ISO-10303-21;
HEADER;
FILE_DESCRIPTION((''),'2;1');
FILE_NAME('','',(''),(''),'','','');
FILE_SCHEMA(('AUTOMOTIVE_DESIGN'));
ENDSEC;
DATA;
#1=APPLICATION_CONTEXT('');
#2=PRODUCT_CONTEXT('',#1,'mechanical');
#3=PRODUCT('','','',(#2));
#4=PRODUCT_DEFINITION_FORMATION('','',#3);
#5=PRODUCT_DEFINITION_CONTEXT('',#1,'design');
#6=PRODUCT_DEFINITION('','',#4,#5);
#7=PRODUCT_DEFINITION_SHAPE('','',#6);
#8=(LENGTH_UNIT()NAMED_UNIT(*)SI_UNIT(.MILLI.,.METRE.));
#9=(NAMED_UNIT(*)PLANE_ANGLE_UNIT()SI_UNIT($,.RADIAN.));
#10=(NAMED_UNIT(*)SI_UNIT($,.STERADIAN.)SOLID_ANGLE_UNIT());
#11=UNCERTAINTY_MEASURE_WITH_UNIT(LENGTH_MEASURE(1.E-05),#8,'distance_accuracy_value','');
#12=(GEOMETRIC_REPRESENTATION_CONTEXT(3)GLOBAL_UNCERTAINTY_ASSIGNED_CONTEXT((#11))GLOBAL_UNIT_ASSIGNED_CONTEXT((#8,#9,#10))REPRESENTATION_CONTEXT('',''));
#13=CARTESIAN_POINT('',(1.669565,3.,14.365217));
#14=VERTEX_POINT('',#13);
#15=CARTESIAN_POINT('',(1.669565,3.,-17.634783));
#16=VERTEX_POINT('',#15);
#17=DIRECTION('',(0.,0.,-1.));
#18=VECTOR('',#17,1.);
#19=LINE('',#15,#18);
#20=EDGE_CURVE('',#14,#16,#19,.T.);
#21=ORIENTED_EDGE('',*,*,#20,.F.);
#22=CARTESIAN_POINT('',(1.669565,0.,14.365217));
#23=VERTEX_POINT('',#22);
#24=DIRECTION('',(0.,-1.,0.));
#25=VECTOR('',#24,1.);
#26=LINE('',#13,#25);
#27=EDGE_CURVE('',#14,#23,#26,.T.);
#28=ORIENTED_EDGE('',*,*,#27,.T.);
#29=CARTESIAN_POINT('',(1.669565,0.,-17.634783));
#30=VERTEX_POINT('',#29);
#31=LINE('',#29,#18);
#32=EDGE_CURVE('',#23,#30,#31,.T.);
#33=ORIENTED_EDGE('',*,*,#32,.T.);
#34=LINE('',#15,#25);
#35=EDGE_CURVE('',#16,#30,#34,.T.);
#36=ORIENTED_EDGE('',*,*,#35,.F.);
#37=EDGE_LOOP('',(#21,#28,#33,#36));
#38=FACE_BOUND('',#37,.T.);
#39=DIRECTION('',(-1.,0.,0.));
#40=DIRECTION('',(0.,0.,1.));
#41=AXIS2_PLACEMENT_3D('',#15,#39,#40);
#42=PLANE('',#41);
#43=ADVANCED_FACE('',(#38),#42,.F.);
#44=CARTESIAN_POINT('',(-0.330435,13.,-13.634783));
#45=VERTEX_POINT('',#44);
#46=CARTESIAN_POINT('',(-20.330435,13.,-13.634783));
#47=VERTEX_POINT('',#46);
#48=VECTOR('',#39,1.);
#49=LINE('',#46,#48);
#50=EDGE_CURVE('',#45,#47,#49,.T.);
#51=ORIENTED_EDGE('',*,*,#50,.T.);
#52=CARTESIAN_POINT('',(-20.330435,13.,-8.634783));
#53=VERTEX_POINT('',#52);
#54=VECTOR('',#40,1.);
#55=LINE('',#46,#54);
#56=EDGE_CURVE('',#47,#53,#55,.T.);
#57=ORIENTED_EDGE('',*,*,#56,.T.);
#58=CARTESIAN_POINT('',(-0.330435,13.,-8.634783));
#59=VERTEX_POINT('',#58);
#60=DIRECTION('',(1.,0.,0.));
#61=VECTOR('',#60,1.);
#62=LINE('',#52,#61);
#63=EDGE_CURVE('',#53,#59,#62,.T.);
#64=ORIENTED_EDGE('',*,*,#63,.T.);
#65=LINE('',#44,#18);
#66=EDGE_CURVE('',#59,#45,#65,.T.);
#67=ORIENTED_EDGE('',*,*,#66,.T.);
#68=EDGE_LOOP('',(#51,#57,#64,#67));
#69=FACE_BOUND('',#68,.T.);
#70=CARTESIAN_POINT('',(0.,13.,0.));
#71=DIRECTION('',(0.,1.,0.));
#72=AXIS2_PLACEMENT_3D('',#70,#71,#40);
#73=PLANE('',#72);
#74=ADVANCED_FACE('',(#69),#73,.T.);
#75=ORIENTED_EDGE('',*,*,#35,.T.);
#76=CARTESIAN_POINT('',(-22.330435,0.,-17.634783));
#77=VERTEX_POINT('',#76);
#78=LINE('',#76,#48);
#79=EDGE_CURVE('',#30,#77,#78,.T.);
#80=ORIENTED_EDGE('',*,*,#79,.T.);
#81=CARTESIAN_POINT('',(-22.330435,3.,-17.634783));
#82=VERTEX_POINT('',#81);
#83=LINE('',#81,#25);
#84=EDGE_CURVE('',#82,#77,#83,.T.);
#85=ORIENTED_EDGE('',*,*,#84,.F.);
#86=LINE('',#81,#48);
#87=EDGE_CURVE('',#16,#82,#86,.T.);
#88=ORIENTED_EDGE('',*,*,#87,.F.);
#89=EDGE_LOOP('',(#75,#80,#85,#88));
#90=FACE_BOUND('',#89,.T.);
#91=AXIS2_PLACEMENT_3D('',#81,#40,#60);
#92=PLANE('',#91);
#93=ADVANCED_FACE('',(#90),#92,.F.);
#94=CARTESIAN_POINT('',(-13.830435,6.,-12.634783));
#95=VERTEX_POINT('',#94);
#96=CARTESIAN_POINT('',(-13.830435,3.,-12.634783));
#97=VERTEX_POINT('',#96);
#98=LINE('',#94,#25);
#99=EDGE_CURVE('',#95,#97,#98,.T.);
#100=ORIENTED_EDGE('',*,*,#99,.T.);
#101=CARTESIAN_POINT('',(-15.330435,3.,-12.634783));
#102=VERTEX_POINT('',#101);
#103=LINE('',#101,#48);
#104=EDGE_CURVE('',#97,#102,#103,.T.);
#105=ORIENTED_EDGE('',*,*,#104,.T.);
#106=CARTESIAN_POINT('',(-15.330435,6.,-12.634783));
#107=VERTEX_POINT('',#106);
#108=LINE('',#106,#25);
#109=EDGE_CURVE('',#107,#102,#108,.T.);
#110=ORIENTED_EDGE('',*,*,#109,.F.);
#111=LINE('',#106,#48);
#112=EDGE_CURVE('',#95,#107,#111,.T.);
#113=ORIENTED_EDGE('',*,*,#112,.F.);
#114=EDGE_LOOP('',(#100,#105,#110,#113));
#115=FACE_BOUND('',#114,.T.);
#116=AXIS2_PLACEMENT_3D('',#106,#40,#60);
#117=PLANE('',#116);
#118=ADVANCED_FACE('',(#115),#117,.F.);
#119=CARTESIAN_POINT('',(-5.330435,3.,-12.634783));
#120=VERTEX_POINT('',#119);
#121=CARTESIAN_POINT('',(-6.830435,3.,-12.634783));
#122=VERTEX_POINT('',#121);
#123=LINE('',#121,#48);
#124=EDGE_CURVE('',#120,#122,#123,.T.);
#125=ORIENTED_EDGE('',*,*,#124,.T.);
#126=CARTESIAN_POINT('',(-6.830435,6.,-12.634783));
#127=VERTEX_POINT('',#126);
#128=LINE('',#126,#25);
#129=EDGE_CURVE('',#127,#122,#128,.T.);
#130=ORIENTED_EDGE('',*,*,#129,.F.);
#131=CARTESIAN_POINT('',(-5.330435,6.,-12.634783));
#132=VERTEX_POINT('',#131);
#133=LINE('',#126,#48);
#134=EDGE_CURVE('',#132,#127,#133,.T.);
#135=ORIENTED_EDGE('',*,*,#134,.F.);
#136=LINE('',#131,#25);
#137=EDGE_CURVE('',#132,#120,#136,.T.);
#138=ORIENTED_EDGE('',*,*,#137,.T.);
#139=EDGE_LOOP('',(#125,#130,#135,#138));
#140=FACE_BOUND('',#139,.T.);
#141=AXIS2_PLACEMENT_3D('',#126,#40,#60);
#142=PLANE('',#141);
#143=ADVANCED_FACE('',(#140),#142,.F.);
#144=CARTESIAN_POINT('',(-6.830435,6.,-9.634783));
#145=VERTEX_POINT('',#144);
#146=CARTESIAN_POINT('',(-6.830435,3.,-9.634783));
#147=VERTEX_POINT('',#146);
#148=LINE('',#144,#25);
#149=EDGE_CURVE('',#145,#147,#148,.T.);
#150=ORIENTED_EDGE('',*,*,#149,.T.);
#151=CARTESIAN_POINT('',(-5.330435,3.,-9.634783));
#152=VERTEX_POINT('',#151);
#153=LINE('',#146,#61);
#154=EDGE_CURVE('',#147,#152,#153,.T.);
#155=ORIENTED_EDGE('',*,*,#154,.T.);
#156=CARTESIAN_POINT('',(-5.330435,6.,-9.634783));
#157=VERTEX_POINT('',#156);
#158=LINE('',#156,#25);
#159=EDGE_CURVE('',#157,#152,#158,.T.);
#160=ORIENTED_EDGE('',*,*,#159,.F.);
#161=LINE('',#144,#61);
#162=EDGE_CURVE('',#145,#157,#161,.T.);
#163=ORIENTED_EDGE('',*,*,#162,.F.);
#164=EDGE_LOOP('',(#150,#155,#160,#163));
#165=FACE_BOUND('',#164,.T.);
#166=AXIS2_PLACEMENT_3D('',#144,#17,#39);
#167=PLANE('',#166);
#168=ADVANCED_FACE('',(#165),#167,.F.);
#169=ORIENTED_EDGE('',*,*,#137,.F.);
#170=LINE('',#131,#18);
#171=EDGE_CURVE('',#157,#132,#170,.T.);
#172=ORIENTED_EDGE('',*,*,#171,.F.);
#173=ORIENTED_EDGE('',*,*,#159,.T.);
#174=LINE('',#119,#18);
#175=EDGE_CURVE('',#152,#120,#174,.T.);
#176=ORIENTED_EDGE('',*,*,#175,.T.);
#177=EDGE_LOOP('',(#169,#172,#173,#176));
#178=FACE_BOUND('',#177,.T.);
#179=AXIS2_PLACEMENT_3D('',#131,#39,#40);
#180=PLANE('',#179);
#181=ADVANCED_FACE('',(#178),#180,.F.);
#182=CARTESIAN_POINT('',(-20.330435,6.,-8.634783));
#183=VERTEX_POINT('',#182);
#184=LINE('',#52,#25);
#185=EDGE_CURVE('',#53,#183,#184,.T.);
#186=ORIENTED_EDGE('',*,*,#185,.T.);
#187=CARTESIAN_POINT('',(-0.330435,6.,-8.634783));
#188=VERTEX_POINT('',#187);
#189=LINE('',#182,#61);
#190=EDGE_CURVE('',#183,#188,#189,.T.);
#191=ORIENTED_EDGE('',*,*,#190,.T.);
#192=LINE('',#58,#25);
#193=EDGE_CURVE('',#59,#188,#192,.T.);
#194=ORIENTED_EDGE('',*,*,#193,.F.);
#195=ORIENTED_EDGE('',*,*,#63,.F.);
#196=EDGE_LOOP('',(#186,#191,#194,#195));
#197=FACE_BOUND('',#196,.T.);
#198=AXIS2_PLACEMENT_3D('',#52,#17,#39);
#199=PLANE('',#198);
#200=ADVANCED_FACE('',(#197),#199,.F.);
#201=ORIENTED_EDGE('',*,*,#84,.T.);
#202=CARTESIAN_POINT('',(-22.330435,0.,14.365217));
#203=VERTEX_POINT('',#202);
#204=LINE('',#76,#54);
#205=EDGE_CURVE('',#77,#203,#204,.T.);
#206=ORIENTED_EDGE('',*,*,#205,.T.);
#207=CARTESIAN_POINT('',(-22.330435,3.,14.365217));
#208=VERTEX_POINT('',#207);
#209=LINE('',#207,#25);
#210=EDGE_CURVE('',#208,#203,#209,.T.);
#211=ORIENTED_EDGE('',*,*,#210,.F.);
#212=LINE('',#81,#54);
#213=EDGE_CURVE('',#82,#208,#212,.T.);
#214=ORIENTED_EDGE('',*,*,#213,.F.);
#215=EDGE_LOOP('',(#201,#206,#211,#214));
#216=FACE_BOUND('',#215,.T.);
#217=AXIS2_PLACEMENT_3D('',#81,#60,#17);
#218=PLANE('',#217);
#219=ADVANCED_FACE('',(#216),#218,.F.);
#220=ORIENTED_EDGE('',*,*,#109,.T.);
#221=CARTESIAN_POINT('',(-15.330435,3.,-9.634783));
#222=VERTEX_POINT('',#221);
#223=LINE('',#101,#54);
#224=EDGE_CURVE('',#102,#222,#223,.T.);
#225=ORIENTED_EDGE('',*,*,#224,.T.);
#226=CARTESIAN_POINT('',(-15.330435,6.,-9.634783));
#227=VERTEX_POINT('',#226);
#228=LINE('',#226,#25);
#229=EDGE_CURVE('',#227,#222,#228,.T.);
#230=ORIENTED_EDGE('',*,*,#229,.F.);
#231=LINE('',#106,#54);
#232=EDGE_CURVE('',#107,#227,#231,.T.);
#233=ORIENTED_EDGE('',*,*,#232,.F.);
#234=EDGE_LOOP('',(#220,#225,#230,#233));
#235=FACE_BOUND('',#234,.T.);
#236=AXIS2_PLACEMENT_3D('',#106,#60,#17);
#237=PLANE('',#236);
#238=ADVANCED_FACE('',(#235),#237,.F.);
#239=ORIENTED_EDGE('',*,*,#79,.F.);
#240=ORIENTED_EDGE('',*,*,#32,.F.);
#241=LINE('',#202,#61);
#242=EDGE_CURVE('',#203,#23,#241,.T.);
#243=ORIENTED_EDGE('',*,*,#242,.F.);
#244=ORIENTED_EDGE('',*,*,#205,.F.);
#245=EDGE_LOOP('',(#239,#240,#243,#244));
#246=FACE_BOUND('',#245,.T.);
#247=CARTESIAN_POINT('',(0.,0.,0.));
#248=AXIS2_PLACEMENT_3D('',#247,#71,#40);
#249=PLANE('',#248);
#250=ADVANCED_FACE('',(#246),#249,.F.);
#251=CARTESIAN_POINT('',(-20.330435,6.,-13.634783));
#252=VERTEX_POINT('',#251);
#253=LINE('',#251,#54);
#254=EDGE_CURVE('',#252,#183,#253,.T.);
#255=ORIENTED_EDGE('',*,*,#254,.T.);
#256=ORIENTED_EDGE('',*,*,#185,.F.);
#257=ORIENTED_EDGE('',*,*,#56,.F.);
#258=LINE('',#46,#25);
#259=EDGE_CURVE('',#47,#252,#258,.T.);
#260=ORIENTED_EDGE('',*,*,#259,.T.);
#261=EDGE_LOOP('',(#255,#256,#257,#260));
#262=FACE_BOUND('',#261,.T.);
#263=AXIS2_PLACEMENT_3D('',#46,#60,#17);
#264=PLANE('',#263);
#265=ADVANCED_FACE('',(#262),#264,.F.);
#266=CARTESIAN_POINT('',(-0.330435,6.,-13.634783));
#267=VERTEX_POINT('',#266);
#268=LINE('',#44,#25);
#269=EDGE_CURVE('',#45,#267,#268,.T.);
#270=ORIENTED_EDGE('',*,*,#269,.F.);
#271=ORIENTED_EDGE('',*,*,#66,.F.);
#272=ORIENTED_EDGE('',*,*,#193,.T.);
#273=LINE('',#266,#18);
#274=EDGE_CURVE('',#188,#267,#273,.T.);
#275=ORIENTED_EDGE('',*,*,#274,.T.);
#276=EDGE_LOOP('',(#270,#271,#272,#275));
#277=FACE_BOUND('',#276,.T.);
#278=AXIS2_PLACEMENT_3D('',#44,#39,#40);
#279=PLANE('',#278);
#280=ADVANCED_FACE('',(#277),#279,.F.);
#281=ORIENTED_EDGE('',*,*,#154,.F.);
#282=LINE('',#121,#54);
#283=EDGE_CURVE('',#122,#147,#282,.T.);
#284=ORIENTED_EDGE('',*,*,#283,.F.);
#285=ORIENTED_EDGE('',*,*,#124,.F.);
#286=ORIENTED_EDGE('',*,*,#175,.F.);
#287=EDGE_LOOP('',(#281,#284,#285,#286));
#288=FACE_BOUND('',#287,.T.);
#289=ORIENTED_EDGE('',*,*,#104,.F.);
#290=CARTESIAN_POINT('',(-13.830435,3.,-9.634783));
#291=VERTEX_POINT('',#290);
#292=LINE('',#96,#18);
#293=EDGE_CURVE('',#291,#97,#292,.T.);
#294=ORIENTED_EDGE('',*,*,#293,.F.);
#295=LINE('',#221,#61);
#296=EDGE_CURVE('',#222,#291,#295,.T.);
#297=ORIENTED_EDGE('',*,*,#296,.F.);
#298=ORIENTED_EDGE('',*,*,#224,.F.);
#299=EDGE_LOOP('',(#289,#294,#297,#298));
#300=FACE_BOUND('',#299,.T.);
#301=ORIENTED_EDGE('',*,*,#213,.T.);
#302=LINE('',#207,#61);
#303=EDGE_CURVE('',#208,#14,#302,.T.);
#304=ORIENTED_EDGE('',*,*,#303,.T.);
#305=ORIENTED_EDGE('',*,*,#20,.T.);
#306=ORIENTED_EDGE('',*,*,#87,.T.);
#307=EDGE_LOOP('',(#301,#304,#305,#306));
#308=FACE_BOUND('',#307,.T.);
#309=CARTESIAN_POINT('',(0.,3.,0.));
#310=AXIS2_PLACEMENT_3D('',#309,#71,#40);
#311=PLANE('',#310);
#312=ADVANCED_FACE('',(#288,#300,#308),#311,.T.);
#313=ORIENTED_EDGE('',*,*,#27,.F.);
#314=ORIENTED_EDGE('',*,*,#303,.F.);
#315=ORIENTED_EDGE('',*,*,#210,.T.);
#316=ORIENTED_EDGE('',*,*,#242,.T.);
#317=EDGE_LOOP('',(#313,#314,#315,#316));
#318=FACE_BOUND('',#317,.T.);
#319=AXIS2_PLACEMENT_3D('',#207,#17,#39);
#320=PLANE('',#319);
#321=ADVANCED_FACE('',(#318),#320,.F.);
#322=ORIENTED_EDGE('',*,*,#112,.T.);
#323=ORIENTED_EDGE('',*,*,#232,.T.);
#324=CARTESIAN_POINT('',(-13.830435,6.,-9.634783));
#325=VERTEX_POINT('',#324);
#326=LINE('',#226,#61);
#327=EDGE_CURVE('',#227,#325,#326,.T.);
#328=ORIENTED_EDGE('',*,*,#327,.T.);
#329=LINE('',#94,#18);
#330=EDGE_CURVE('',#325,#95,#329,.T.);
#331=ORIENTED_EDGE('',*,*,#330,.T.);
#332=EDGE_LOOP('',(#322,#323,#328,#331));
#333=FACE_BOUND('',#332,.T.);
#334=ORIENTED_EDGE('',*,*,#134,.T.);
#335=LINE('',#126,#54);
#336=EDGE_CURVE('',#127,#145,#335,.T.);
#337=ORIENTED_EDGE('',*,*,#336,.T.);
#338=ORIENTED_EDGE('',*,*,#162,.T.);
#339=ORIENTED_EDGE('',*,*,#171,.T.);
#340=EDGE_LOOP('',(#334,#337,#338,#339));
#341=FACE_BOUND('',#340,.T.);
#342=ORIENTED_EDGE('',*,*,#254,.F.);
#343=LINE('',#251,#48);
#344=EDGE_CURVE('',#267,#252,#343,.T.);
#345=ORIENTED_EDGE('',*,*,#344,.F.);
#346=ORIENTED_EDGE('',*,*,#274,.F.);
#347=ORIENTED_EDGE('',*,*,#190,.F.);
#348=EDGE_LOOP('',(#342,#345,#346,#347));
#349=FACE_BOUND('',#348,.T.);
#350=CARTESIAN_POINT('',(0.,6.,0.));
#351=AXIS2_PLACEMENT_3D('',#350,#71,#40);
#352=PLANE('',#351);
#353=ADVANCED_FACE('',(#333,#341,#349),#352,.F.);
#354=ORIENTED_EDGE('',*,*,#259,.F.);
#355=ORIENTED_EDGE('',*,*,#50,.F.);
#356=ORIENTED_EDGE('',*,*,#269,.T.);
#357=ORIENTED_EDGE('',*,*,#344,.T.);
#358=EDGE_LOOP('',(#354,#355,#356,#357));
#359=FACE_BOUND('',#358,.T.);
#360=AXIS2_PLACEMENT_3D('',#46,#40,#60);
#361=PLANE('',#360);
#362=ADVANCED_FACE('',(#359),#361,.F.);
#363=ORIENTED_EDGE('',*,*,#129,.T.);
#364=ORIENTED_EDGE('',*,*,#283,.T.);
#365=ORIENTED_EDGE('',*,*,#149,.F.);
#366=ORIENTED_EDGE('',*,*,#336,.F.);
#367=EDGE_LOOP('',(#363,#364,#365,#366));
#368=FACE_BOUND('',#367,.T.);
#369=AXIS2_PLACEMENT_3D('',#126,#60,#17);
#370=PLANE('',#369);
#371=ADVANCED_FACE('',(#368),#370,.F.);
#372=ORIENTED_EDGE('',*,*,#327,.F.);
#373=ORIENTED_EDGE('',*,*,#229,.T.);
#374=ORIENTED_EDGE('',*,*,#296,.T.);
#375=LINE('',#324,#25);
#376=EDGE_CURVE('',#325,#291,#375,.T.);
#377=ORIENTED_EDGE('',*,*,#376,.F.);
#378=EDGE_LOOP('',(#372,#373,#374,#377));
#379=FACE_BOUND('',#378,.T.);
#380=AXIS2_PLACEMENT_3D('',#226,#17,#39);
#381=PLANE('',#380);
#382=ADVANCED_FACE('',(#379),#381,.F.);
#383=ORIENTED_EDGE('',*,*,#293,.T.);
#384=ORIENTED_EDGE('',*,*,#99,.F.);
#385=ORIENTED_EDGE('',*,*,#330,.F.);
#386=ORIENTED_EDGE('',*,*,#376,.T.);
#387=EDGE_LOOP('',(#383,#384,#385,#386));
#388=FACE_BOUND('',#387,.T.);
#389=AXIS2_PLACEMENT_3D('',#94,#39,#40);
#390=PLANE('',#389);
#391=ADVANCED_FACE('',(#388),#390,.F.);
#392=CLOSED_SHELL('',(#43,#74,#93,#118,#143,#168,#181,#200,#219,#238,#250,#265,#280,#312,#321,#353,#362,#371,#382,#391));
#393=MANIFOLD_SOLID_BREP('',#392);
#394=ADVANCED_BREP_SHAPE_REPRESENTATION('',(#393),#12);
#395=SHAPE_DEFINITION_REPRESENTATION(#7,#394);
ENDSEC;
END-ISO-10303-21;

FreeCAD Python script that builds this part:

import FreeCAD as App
import Part
import Sketcher
from FreeCAD import Vector
Q = App.Units.Quantity


def add_polygon(sketch, points):
    """Adds a closed chain of lines whose ends are joined by coincident constraints."""
    first, n = sketch.GeometryCount, len(points)
    for a, b in zip(points, points[1:] + points[:1]):
        sketch.addGeometry(Part.LineSegment(App.Vector(*a, 0), App.Vector(*b, 0)), False)
    for i in range(n):
        sketch.addConstraint(Sketcher.Constraint("Coincident", first + i, 2, first + (i + 1) % n, 1))

doc = App.newDocument("Part")
params = doc.addObject("Spreadsheet::Sheet", "Params")
for row, (alias, value) in enumerate([
    ("sketch1_width", "24 mm"),
    ("sketch1_height", "32 mm"),
    ("pad1_length", "3 mm"),
    ("sketch2_height", "3 mm"),
    ("sketch2_width", "1.5 mm"),
    ("pad2_length", "3 mm"),
    ("sketch3_width", "20 mm"),
    ("sketch3_height", "5 mm"),
    ("pad3_length", "7 mm"),
], start=1):
    params.set(f"A{row}", alias)
    params.set(f"B{row}", "=" + value)
    params.setAlias(f"B{row}", alias)

body = doc.addObject("PartDesign::Body", "Body")

# Sketch on XZ plane
sketch1 = body.newObject("Sketcher::SketchObject", "Sketch")
sketch1.AttachmentSupport = (doc.getObject("XZ_Plane"), [""])
sketch1.MapMode = "FlatFace"
add_polygon(sketch1, [(-22.330435, -17.634783), (-22.330435, 14.365217), (1.669565, 14.365217), (1.669565, -17.634783)])  # lines 0-3
sketch1.addConstraint(Sketcher.Constraint("Vertical", 0))
sketch1.addConstraint(Sketcher.Constraint("Horizontal", 1))
sketch1.addConstraint(Sketcher.Constraint("Vertical", 2))
sketch1.addConstraint(Sketcher.Constraint("Horizontal", 3))
sketch1.addConstraint(Sketcher.Constraint("DistanceX", 1, 1, 1, 2, Q("24 mm")))
sketch1.addConstraint(Sketcher.Constraint("DistanceY", 0, 1, 0, 2, Q("32 mm")))
sketch1.addConstraint(Sketcher.Constraint("DistanceX", 0, 2, -1, 1, Q("22.330435 mm")))
sketch1.addConstraint(Sketcher.Constraint("DistanceY", -1, 1, 0, 2, Q("14.365217 mm")))
sketch1.setExpression("Constraints[8]", "Params.sketch1_width")
sketch1.setExpression("Constraints[9]", "Params.sketch1_height")
pad1 = body.newObject("PartDesign::Pad", "Pad")
pad1.Profile = sketch1
pad1.setExpression("Length", "Params.pad1_length")
pad1.Reversed = True

# Sketch on XZ plane
sketch2 = body.newObject("Sketcher::SketchObject", "Sketch001")
sketch2.AttachmentSupport = (doc.getObject("XZ_Plane"), [""])
sketch2.MapMode = "FlatFace"
sketch2.AttachmentOffset = App.Placement(Vector(0, 0, -3), App.Rotation())
add_polygon(sketch2, [(-15.330435, -12.634783), (-15.330435, -9.634783), (-13.830435, -9.634783), (-13.830435, -12.634783)])  # lines 0-3
add_polygon(sketch2, [(-6.830435, -12.634783), (-6.830435, -9.634783), (-5.330435, -9.634783), (-5.330435, -12.634783)])  # lines 4-7
sketch2.addConstraint(Sketcher.Constraint("Vertical", 0))
sketch2.addConstraint(Sketcher.Constraint("Horizontal", 1))
sketch2.addConstraint(Sketcher.Constraint("Vertical", 2))
sketch2.addConstraint(Sketcher.Constraint("Horizontal", 3))
sketch2.addConstraint(Sketcher.Constraint("Vertical", 4))
sketch2.addConstraint(Sketcher.Constraint("Horizontal", 5))
sketch2.addConstraint(Sketcher.Constraint("Vertical", 6))
sketch2.addConstraint(Sketcher.Constraint("Horizontal", 7))
sketch2.addConstraint(Sketcher.Constraint("Horizontal", 1, 2, 4, 2))
sketch2.addConstraint(Sketcher.Constraint("Horizontal", 3, 2, 6, 2))
sketch2.addConstraint(Sketcher.Constraint("Equal", 3, 5))
sketch2.addConstraint(Sketcher.Constraint("DistanceY", 0, 1, 0, 2, Q("3 mm")))
sketch2.addConstraint(Sketcher.Constraint("DistanceX", 1, 1, 1, 2, Q("1.5 mm")))
sketch2.addConstraint(Sketcher.Constraint("DistanceX", 1, 2, 4, 2, Q("7 mm")))
sketch2.addConstraint(Sketcher.Constraint("DistanceX", 0, 2, -1, 1, Q("15.330435 mm")))
sketch2.addConstraint(Sketcher.Constraint("DistanceY", 0, 2, -1, 1, Q("9.634783 mm")))
sketch2.setExpression("Constraints[19]", "Params.sketch2_height")
sketch2.setExpression("Constraints[20]", "Params.sketch2_width")
pad2 = body.newObject("PartDesign::Pad", "Pad001")
pad2.Profile = sketch2
pad2.setExpression("Length", "Params.pad2_length")
pad2.Reversed = True

# Sketch on XZ plane
sketch3 = body.newObject("Sketcher::SketchObject", "Sketch002")
sketch3.AttachmentSupport = (doc.getObject("XZ_Plane"), [""])
sketch3.MapMode = "FlatFace"
sketch3.AttachmentOffset = App.Placement(Vector(0, 0, -6), App.Rotation())
add_polygon(sketch3, [(-20.330435, -13.634783), (-20.330435, -8.634783), (-0.330435, -8.634783), (-0.330435, -13.634783)])  # lines 0-3
sketch3.addConstraint(Sketcher.Constraint("Vertical", 0))
sketch3.addConstraint(Sketcher.Constraint("Horizontal", 1))
sketch3.addConstraint(Sketcher.Constraint("Vertical", 2))
sketch3.addConstraint(Sketcher.Constraint("Horizontal", 3))
sketch3.addConstraint(Sketcher.Constraint("DistanceX", 1, 1, 1, 2, Q("20 mm")))
sketch3.addConstraint(Sketcher.Constraint("DistanceY", 0, 1, 0, 2, Q("5 mm")))
sketch3.addConstraint(Sketcher.Constraint("DistanceX", 0, 2, -1, 1, Q("20.330435 mm")))
sketch3.addConstraint(Sketcher.Constraint("DistanceY", 0, 2, -1, 1, Q("8.634783 mm")))
sketch3.setExpression("Constraints[8]", "Params.sketch3_width")
sketch3.setExpression("Constraints[9]", "Params.sketch3_height")
pad3 = body.newObject("PartDesign::Pad", "Pad002")
pad3.Profile = sketch3
pad3.setExpression("Length", "Params.pad3_length")
pad3.Reversed = True

doc.recompute()
